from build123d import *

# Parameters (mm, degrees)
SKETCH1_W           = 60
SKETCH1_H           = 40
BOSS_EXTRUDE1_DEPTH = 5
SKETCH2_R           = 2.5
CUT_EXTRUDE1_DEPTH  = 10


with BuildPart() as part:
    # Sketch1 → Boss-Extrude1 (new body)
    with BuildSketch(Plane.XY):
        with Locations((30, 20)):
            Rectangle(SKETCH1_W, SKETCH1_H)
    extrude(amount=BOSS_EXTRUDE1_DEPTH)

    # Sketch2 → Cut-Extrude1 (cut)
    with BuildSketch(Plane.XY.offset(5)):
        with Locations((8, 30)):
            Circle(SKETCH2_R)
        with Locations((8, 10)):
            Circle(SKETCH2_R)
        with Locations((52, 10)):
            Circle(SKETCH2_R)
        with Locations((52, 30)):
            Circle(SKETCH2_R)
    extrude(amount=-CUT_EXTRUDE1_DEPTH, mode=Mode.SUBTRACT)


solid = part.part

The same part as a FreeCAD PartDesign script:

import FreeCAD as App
import Part
import Sketcher


def add_polygon(sketch, points):
    """Adds a closed chain of lines whose ends are joined by coincident constraints."""
    first, n = sketch.GeometryCount, len(points)
    for a, b in zip(points, points[1:] + points[:1]):
        sketch.addGeometry(Part.LineSegment(App.Vector(*a, 0), App.Vector(*b, 0)), False)
    for i in range(n):
        sketch.addConstraint(Sketcher.Constraint("Coincident", first + i, 2, first + (i + 1) % n, 1))

doc = App.newDocument("Part")
params = doc.addObject("Spreadsheet::Sheet", "Params")
for row, (alias, value) in enumerate([
    ("sketch1_width", "60 mm"),
    ("sketch1_height", "40 mm"),
    ("pad1_length", "5 mm"),
    ("sketch2_diameter", "5 mm"),
    ("pocket1_length", "10 mm"),
], start=1):
    params.set(f"A{row}", alias)
    params.set(f"B{row}", "=" + value)
    params.setAlias(f"B{row}", alias)

body = doc.addObject("PartDesign::Body", "Body")

# Sketch on XY plane
sketch1 = body.newObject("Sketcher::SketchObject", "Sketch")
sketch1.AttachmentSupport = (doc.getObject("XY_Plane"), [""])
sketch1.MapMode = "FlatFace"
add_polygon(sketch1, [(0, 40), (0, 0), (60, 0), (60, 40)])  # lines 0-3
sketch1.addConstraint([
    Sketcher.Constraint("Vertical", 0),
    Sketcher.Constraint("Horizontal", 1),
    Sketcher.Constraint("Vertical", 2),
    Sketcher.Constraint("Horizontal", 3),
    Sketcher.Constraint("Coincident", 0, 2, -1, 1),
    Sketcher.Constraint("DistanceX", 1, 1, 1, 2, 60.0),
    Sketcher.Constraint("DistanceY", 0, 2, 0, 1, 40.0),
])
sketch1.setExpression("Constraints[9]", "Params.sketch1_width")
sketch1.setExpression("Constraints[10]", "Params.sketch1_height")
pad1 = body.newObject("PartDesign::Pad", "Pad")
pad1.Profile = sketch1
pad1.setExpression("Length", "Params.pad1_length")

# Sketch on XY plane
sketch2 = body.newObject("Sketcher::SketchObject", "Sketch001")
sketch2.AttachmentSupport = (doc.getObject("XY_Plane"), [""])
sketch2.MapMode = "FlatFace"
sketch2.AttachmentOffset = App.Placement(App.Vector(0, 0, 5), App.Rotation())
sketch2.addGeometry([
    Part.Circle(App.Vector(8, 30, 0), App.Vector(0, 0, 1), 2.5),
    Part.Circle(App.Vector(8, 10, 0), App.Vector(0, 0, 1), 2.5),
    Part.Circle(App.Vector(52, 10, 0), App.Vector(0, 0, 1), 2.5),
    Part.Circle(App.Vector(52, 30, 0), App.Vector(0, 0, 1), 2.5),
], False)
sketch2.addConstraint([
    Sketcher.Constraint("Equal", 0, 1),
    Sketcher.Constraint("Equal", 1, 2),
    Sketcher.Constraint("Equal", 2, 3),
    Sketcher.Constraint("Horizontal", 1, 3, 2, 3),
    Sketcher.Constraint("Horizontal", 0, 3, 3, 3),
    Sketcher.Constraint("Vertical", 0, 3, 1, 3),
    Sketcher.Constraint("Vertical", 2, 3, 3, 3),
    Sketcher.Constraint("Diameter", 0, 5.0),
    Sketcher.Constraint("DistanceX", -1, 1, 0, 3, 8.0),
    Sketcher.Constraint("DistanceY", -1, 1, 0, 3, 30.0),
    Sketcher.Constraint("DistanceY", -1, 1, 1, 3, 10.0),
    Sketcher.Constraint("DistanceX", -1, 1, 2, 3, 52.0),
])
sketch2.setExpression("Constraints[7]", "Params.sketch2_diameter")
pocket1 = body.newObject("PartDesign::Pocket", "Pocket")
pocket1.Profile = sketch2
pocket1.setExpression("Length", "Params.pocket1_length")

doc.recompute()
